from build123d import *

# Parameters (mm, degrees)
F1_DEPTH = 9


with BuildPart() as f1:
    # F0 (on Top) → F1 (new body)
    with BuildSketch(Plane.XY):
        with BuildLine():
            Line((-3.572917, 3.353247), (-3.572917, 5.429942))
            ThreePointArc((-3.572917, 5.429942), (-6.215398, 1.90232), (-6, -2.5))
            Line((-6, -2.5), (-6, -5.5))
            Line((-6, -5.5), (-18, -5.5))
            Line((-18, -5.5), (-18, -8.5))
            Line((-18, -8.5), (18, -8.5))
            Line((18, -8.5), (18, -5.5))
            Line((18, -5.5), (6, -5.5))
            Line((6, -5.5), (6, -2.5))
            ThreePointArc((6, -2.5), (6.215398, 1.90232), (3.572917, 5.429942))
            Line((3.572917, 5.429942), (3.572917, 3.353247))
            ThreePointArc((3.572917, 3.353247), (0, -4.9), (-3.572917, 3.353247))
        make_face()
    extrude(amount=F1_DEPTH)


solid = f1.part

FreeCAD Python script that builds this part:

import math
import FreeCAD as App
import Part
import Sketcher
from FreeCAD import Vector
Q = App.Units.Quantity

doc = App.newDocument("Part")
params = doc.addObject("Spreadsheet::Sheet", "Params")
for row, (alias, value) in enumerate([
    ("sketch1_radius", "4.9 mm"),
    ("sketch1_width", "12 mm"),
    ("sketch1_width2", "36 mm"),
    ("sketch1_height", "3 mm"),
    ("pad1_length", "9 mm"),
], start=1):
    params.set(f"A{row}", alias)
    params.set(f"B{row}", "=" + value)
    params.setAlias(f"B{row}", alias)

body = doc.addObject("PartDesign::Body", "Body")

# Sketch on XY plane
sketch1 = body.newObject("Sketcher::SketchObject", "Sketch")
sketch1.AttachmentSupport = (doc.getObject("XY_Plane"), [""])
sketch1.MapMode = "FlatFace"
sketch1.addGeometry([
    Part.LineSegment(Vector(-3.572917, 3.353247, 0), Vector(-3.572917, 5.429942, 0)),  # 0
    Part.ArcOfCircle(Part.Circle(Vector(0.000003, -0.000001, 0), Vector(0, 0, 1), 6.500003), math.radians(123.345048), math.radians(202.61985)),  # 1
    Part.LineSegment(Vector(-6, -2.5, 0), Vector(-6, -5.5, 0)),  # 2
    Part.LineSegment(Vector(-6, -5.5, 0), Vector(-18, -5.5, 0)),  # 3
    Part.LineSegment(Vector(-18, -5.5, 0), Vector(-18, -8.5, 0)),  # 4
    Part.LineSegment(Vector(-18, -8.5, 0), Vector(18, -8.5, 0)),  # 5
    Part.LineSegment(Vector(18, -8.5, 0), Vector(18, -5.5, 0)),  # 6
    Part.LineSegment(Vector(18, -5.5, 0), Vector(6, -5.5, 0)),  # 7
    Part.LineSegment(Vector(6, -5.5, 0), Vector(6, -2.5, 0)),  # 8
    Part.ArcOfCircle(Part.Circle(Vector(-0.000003, -0.000001, 0), Vector(0, 0, 1), 6.500003), math.radians(-22.61985), math.radians(56.654952)),  # 9
    Part.LineSegment(Vector(3.572917, 5.429942, 0), Vector(3.572917, 3.353247, 0)),  # 10
    Part.ArcOfCircle(Part.Circle(Vector(0, 0, 0), Vector(0, 0, 1), 4.9), math.radians(136.816583), math.radians(403.183417)),  # 11
], False)
sketch1.addConstraint([
    Sketcher.Constraint("Coincident", 0, 2, 1, 1),
    Sketcher.Constraint("Coincident", 1, 2, 2, 1),
    Sketcher.Constraint("Coincident", 2, 2, 3, 1),
    Sketcher.Constraint("Coincident", 3, 2, 4, 1),
    Sketcher.Constraint("Coincident", 4, 2, 5, 1),
    Sketcher.Constraint("Coincident", 5, 2, 6, 1),
    Sketcher.Constraint("Coincident", 6, 2, 7, 1),
    Sketcher.Constraint("Coincident", 7, 2, 8, 1),
    Sketcher.Constraint("Coincident", 8, 2, 9, 1),
    Sketcher.Constraint("Coincident", 9, 2, 10, 1),
    Sketcher.Constraint("Coincident", 10, 2, 11, 2),
    Sketcher.Constraint("Coincident", 11, 1, 0, 1),
    Sketcher.Constraint("Vertical", 0),
    Sketcher.Constraint("Vertical", 2),
    Sketcher.Constraint("Horizontal", 3),
    Sketcher.Constraint("Vertical", 4),
    Sketcher.Constraint("Horizontal", 5),
    Sketcher.Constraint("Vertical", 6),
    Sketcher.Constraint("Horizontal", 7),
    Sketcher.Constraint("Vertical", 8),
    Sketcher.Constraint("Vertical", 10),
    Sketcher.Constraint("Coincident", 1, 3, -1, 1),
    Sketcher.Constraint("Coincident", 9, 3, -1, 1),
    Sketcher.Constraint("Coincident", 11, 3, -1, 1),
    Sketcher.Constraint("Equal", 1, 9),
    Sketcher.Constraint("Symmetric", 3, 2, 6, 2, -2),
    Sketcher.Constraint("Horizontal", 1, 2, 8, 2),
    Sketcher.Constraint("Horizontal", 0, 2, 9, 2),
    Sketcher.Constraint("Equal", 2, 4),
    Sketcher.Constraint("Radius", 11, Q("4.9 mm")),
    Sketcher.Constraint("DistanceX", 3, 2, 3, 1, Q("12 mm")),
    Sketcher.Constraint("DistanceX", 5, 1, 5, 2, Q("36 mm")),
    Sketcher.Constraint("DistanceY", 2, 2, 2, 1, Q("3 mm")),
    Sketcher.Constraint("DistanceY", 1, 2, -1, 1, Q("2.5 mm")),
    Sketcher.Constraint("DistanceY", 0, 1, 0, 2, Q("2.076695 mm")),
])
sketch1.setExpression("Constraints[29]", "Params.sketch1_radius")
sketch1.setExpression("Constraints[30]", "Params.sketch1_width")
sketch1.setExpression("Constraints[31]", "Params.sketch1_width2")
sketch1.setExpression("Constraints[32]", "Params.sketch1_height")
pad1 = body.newObject("PartDesign::Pad", "Pad")
pad1.Profile = sketch1
pad1.setExpression("Length", "Params.pad1_length")

doc.recompute()
